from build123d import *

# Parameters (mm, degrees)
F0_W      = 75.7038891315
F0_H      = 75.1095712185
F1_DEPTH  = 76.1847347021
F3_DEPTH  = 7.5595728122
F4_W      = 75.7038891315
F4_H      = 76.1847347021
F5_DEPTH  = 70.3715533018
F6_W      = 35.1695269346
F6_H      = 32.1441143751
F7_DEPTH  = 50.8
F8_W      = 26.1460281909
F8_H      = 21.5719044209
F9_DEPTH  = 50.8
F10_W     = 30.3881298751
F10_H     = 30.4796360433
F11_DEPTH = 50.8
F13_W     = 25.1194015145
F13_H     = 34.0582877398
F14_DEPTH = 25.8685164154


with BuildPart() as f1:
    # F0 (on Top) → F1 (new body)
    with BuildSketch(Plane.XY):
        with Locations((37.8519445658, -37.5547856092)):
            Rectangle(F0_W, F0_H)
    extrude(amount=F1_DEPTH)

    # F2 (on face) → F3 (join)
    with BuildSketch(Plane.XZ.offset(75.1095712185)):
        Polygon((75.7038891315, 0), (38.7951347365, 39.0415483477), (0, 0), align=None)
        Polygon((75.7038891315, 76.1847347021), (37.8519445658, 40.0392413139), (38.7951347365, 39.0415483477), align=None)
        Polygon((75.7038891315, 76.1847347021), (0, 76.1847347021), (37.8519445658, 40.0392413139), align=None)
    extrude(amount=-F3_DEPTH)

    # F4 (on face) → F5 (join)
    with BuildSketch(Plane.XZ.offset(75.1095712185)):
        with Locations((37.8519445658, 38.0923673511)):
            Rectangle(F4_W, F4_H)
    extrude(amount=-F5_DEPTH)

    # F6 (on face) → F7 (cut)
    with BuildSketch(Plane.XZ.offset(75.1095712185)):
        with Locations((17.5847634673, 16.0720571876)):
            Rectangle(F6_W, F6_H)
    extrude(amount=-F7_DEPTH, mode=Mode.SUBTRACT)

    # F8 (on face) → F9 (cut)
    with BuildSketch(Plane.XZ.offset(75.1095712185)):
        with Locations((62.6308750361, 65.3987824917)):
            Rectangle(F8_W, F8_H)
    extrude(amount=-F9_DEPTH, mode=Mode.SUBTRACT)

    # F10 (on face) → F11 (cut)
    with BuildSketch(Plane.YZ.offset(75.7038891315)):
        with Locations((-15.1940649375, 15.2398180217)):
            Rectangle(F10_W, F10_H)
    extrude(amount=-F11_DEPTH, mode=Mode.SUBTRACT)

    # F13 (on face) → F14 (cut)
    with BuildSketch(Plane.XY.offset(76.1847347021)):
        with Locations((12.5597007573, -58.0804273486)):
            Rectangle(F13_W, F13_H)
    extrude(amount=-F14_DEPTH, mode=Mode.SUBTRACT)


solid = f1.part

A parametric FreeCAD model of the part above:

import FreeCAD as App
import Part
import Sketcher
Q = App.Units.Quantity

doc = App.newDocument("Part")
body = doc.addObject("PartDesign::Body", "Body")

sketch1 = doc.addObject("Sketcher::SketchObject", "Sketch")
body.addObject(sketch1)
sketch1.AttachmentSupport = (doc.XY_Plane, [""])
sketch1.MapMode = "FlatFace"
sketch1.addGeometry(Part.LineSegment(App.Vector(0, 0, 0), App.Vector(0, -75, 0)), False)
sketch1.addGeometry(Part.LineSegment(App.Vector(0, -75, 0), App.Vector(76, -75, 0)), False)
sketch1.addGeometry(Part.LineSegment(App.Vector(76, -75, 0), App.Vector(76, 0, 0)), False)
sketch1.addGeometry(Part.LineSegment(App.Vector(76, 0, 0), App.Vector(0, 0, 0)), False)
sketch1.addConstraint(Sketcher.Constraint("Coincident", 0, 2, 1, 1))
sketch1.addConstraint(Sketcher.Constraint("Coincident", 1, 2, 2, 1))
sketch1.addConstraint(Sketcher.Constraint("Coincident", 2, 2, 3, 1))
sketch1.addConstraint(Sketcher.Constraint("Coincident", 3, 2, 0, 1))
sketch1.addConstraint(Sketcher.Constraint("Vertical", 0))
sketch1.addConstraint(Sketcher.Constraint("Horizontal", 1))
sketch1.addConstraint(Sketcher.Constraint("Vertical", 2))
sketch1.addConstraint(Sketcher.Constraint("Horizontal", 3))
sketch1.addConstraint(Sketcher.Constraint("Coincident", 3, 2, -1, 1))
sketch1.addConstraint(Sketcher.Constraint("DistanceX", 1, 1, 1, 2, Q("75.703889 mm")))
sketch1.addConstraint(Sketcher.Constraint("DistanceY", 0, 2, 0, 1, Q("75.109571 mm")))
pad1 = doc.addObject("PartDesign::Pad", "Pad")
body.addObject(pad1)
pad1.Profile = sketch1
pad1.Length = 76.184735

sketch2 = doc.addObject("Sketcher::SketchObject", "Sketch001")
body.addObject(sketch2)
sketch2.AttachmentSupport = (doc.XZ_Plane, [""])
sketch2.MapMode = "FlatFace"
sketch2.AttachmentOffset = App.Placement(App.Vector(0, 0, 75.109571), App.Rotation())
sketch2.addGeometry(Part.LineSegment(App.Vector(75.7, 0, 0), App.Vector(38.8, 39, 0)), False)
sketch2.addGeometry(Part.LineSegment(App.Vector(38.8, 39, 0), App.Vector(0, 0, 0)), False)
sketch2.addGeometry(Part.LineSegment(App.Vector(0, 0, 0), App.Vector(75.7, 0, 0)), False)
sketch2.addGeometry(Part.LineSegment(App.Vector(37.9, 40, 0), App.Vector(38.8, 39, 0)), False)
sketch2.addGeometry(Part.LineSegment(App.Vector(38.8, 39, 0), App.Vector(75.7, 76.2, 0)), False)
sketch2.addGeometry(Part.LineSegment(App.Vector(75.7, 76.2, 0), App.Vector(0, 76.2, 0)), False)
sketch2.addGeometry(Part.LineSegment(App.Vector(0, 76.2, 0), App.Vector(37.9, 40, 0)), False)
sketch2.addConstraint(Sketcher.Constraint("Coincident", 0, 2, 1, 1))
sketch2.addConstraint(Sketcher.Constraint("Coincident", 1, 2, 2, 1))
sketch2.addConstraint(Sketcher.Constraint("Coincident", 2, 2, 0, 1))
sketch2.addConstraint(Sketcher.Constraint("Coincident", 3, 2, 4, 1))
sketch2.addConstraint(Sketcher.Constraint("Coincident", 4, 2, 5, 1))
sketch2.addConstraint(Sketcher.Constraint("Coincident", 5, 2, 6, 1))
sketch2.addConstraint(Sketcher.Constraint("Coincident", 6, 2, 3, 1))
sketch2.addConstraint(Sketcher.Constraint("Horizontal", 2))
sketch2.addConstraint(Sketcher.Constraint("Horizontal", 5))
sketch2.addConstraint(Sketcher.Constraint("Coincident", 1, 2, -1, 1))
sketch2.addConstraint(Sketcher.Constraint("Coincident", 3, 2, 0, 2))
sketch2.addConstraint(Sketcher.Constraint("PointOnObject", 5, 2, -2))
sketch2.addConstraint(Sketcher.Constraint("Parallel", 0, 3))
sketch2.addConstraint(Sketcher.Constraint("Parallel", 1, 4))
sketch2.addConstraint(Sketcher.Constraint("Vertical", 2, 2, 4, 2))
sketch2.addConstraint(Sketcher.Constraint("Distance", 6, Q("52.338001 mm")))
sketch2.addConstraint(Sketcher.Constraint("DistanceX", 2, 1, 2, 2, Q("75.703889 mm")))
sketch2.addConstraint(Sketcher.Constraint("Distance", 4, Q("52.362892 mm")))
sketch2.addConstraint(Sketcher.Constraint("DistanceY", -1, 1, 0, 2, Q("39.041548 mm")))
pad2 = doc.addObject("PartDesign::Pad", "Pad001")
body.addObject(pad2)
pad2.Profile = sketch2
pad2.Length = 7.559573
pad2.Reversed = True

sketch3 = doc.addObject("Sketcher::SketchObject", "Sketch002")
body.addObject(sketch3)
sketch3.AttachmentSupport = (doc.XZ_Plane, [""])
sketch3.MapMode = "FlatFace"
sketch3.AttachmentOffset = App.Placement(App.Vector(0, 0, 75.109571), App.Rotation())
sketch3.addGeometry(Part.LineSegment(App.Vector(0, 76, 0), App.Vector(0, 0, 0)), False)
sketch3.addGeometry(Part.LineSegment(App.Vector(0, 0, 0), App.Vector(76, 0, 0)), False)
sketch3.addGeometry(Part.LineSegment(App.Vector(76, 0, 0), App.Vector(76, 76, 0)), False)
sketch3.addGeometry(Part.LineSegment(App.Vector(76, 76, 0), App.Vector(0, 76, 0)), False)
sketch3.addConstraint(Sketcher.Constraint("Coincident", 0, 2, 1, 1))
sketch3.addConstraint(Sketcher.Constraint("Coincident", 1, 2, 2, 1))
sketch3.addConstraint(Sketcher.Constraint("Coincident", 2, 2, 3, 1))
sketch3.addConstraint(Sketcher.Constraint("Coincident", 3, 2, 0, 1))
sketch3.addConstraint(Sketcher.Constraint("Vertical", 0))
sketch3.addConstraint(Sketcher.Constraint("Horizontal", 1))
sketch3.addConstraint(Sketcher.Constraint("Vertical", 2))
sketch3.addConstraint(Sketcher.Constraint("Horizontal", 3))
sketch3.addConstraint(Sketcher.Constraint("Coincident", 0, 2, -1, 1))
sketch3.addConstraint(Sketcher.Constraint("DistanceX", 1, 1, 1, 2, Q("75.703889 mm")))
sketch3.addConstraint(Sketcher.Constraint("DistanceY", 0, 2, 0, 1, Q("76.184735 mm")))
pad3 = doc.addObject("PartDesign::Pad", "Pad002")
body.addObject(pad3)
pad3.Profile = sketch3
pad3.Length = 70.371553
pad3.Reversed = True

sketch4 = doc.addObject("Sketcher::SketchObject", "Sketch003")
body.addObject(sketch4)
sketch4.AttachmentSupport = (doc.XZ_Plane, [""])
sketch4.MapMode = "FlatFace"
sketch4.AttachmentOffset = App.Placement(App.Vector(0, 0, 75.109571), App.Rotation())
sketch4.addGeometry(Part.LineSegment(App.Vector(0, 32, 0), App.Vector(0, 0, 0)), False)
sketch4.addGeometry(Part.LineSegment(App.Vector(0, 0, 0), App.Vector(35, 0, 0)), False)
sketch4.addGeometry(Part.LineSegment(App.Vector(35, 0, 0), App.Vector(35, 32, 0)), False)
sketch4.addGeometry(Part.LineSegment(App.Vector(35, 32, 0), App.Vector(0, 32, 0)), False)
sketch4.addConstraint(Sketcher.Constraint("Coincident", 0, 2, 1, 1))
sketch4.addConstraint(Sketcher.Constraint("Coincident", 1, 2, 2, 1))
sketch4.addConstraint(Sketcher.Constraint("Coincident", 2, 2, 3, 1))
sketch4.addConstraint(Sketcher.Constraint("Coincident", 3, 2, 0, 1))
sketch4.addConstraint(Sketcher.Constraint("Vertical", 0))
sketch4.addConstraint(Sketcher.Constraint("Horizontal", 1))
sketch4.addConstraint(Sketcher.Constraint("Vertical", 2))
sketch4.addConstraint(Sketcher.Constraint("Horizontal", 3))
sketch4.addConstraint(Sketcher.Constraint("Coincident", 0, 2, -1, 1))
sketch4.addConstraint(Sketcher.Constraint("DistanceX", 1, 1, 1, 2, Q("35.169527 mm")))
sketch4.addConstraint(Sketcher.Constraint("DistanceY", 0, 2, 0, 1, Q("32.144114 mm")))
pocket1 = doc.addObject("PartDesign::Pocket", "Pocket")
body.addObject(pocket1)
pocket1.Profile = sketch4
pocket1.Length = Q("2 in")

sketch5 = doc.addObject("Sketcher::SketchObject", "Sketch004")
body.addObject(sketch5)
sketch5.AttachmentSupport = (doc.XZ_Plane, [""])
sketch5.MapMode = "FlatFace"
sketch5.AttachmentOffset = App.Placement(App.Vector(0, 0, 75.109571), App.Rotation())
sketch5.addGeometry(Part.LineSegment(App.Vector(50, 76, 0), App.Vector(50, 55, 0)), False)
sketch5.addGeometry(Part.LineSegment(App.Vector(50, 55, 0), App.Vector(76, 55, 0)), False)
sketch5.addGeometry(Part.LineSegment(App.Vector(76, 55, 0), App.Vector(76, 76, 0)), False)
sketch5.addGeometry(Part.LineSegment(App.Vector(76, 76, 0), App.Vector(50, 76, 0)), False)
sketch5.addConstraint(Sketcher.Constraint("Coincident", 0, 2, 1, 1))
sketch5.addConstraint(Sketcher.Constraint("Coincident", 1, 2, 2, 1))
sketch5.addConstraint(Sketcher.Constraint("Coincident", 2, 2, 3, 1))
sketch5.addConstraint(Sketcher.Constraint("Coincident", 3, 2, 0, 1))
sketch5.addConstraint(Sketcher.Constraint("Vertical", 0))
sketch5.addConstraint(Sketcher.Constraint("Horizontal", 1))
sketch5.addConstraint(Sketcher.Constraint("Vertical", 2))
sketch5.addConstraint(Sketcher.Constraint("Horizontal", 3))
sketch5.addConstraint(Sketcher.Constraint("DistanceX", 1, 1, 1, 2, Q("26.146028 mm")))
sketch5.addConstraint(Sketcher.Constraint("DistanceY", 0, 2, 0, 1, Q("21.571904 mm")))
sketch5.addConstraint(Sketcher.Constraint("DistanceX", -1, 1, 0, 2, Q("49.557861 mm")))
sketch5.addConstraint(Sketcher.Constraint("DistanceY", -1, 1, 0, 2, Q("54.61283 mm")))
pocket2 = doc.addObject("PartDesign::Pocket", "Pocket001")
body.addObject(pocket2)
pocket2.Profile = sketch5
pocket2.Length = Q("2 in")

sketch6 = doc.addObject("Sketcher::SketchObject", "Sketch005")
body.addObject(sketch6)
sketch6.AttachmentSupport = (doc.YZ_Plane, [""])
sketch6.MapMode = "FlatFace"
sketch6.AttachmentOffset = App.Placement(App.Vector(0, 0, 75.703889), App.Rotation())
sketch6.addGeometry(Part.LineSegment(App.Vector(-30, 30, 0), App.Vector(-30, 0, 0)), False)
sketch6.addGeometry(Part.LineSegment(App.Vector(-30, 0, 0), App.Vector(0, 0, 0)), False)
sketch6.addGeometry(Part.LineSegment(App.Vector(0, 0, 0), App.Vector(0, 30, 0)), False)
sketch6.addGeometry(Part.LineSegment(App.Vector(0, 30, 0), App.Vector(-30, 30, 0)), False)
sketch6.addConstraint(Sketcher.Constraint("Coincident", 0, 2, 1, 1))
sketch6.addConstraint(Sketcher.Constraint("Coincident", 1, 2, 2, 1))
sketch6.addConstraint(Sketcher.Constraint("Coincident", 2, 2, 3, 1))
sketch6.addConstraint(Sketcher.Constraint("Coincident", 3, 2, 0, 1))
sketch6.addConstraint(Sketcher.Constraint("Vertical", 0))
sketch6.addConstraint(Sketcher.Constraint("Horizontal", 1))
sketch6.addConstraint(Sketcher.Constraint("Vertical", 2))
sketch6.addConstraint(Sketcher.Constraint("Horizontal", 3))
sketch6.addConstraint(Sketcher.Constraint("Coincident", 1, 2, -1, 1))
sketch6.addConstraint(Sketcher.Constraint("DistanceX", 1, 1, 1, 2, Q("30.38813 mm")))
sketch6.addConstraint(Sketcher.Constraint("DistanceY", 0, 2, 0, 1, Q("30.479636 mm")))
pocket3 = doc.addObject("PartDesign::Pocket", "Pocket002")
body.addObject(pocket3)
pocket3.Profile = sketch6
pocket3.Length = Q("2 in")

sketch7 = doc.addObject("Sketcher::SketchObject", "Sketch006")
body.addObject(sketch7)
sketch7.AttachmentSupport = (doc.XY_Plane, [""])
sketch7.MapMode = "FlatFace"
sketch7.AttachmentOffset = App.Placement(App.Vector(0, 0, 76.184735), App.Rotation())
sketch7.addGeometry(Part.LineSegment(App.Vector(0, -41, 0), App.Vector(0, -75, 0)), False)
sketch7.addGeometry(Part.LineSegment(App.Vector(0, -75, 0), App.Vector(25, -75, 0)), False)
sketch7.addGeometry(Part.LineSegment(App.Vector(25, -75, 0), App.Vector(25, -41, 0)), False)
sketch7.addGeometry(Part.LineSegment(App.Vector(25, -41, 0), App.Vector(0, -41, 0)), False)
sketch7.addConstraint(Sketcher.Constraint("Coincident", 0, 2, 1, 1))
sketch7.addConstraint(Sketcher.Constraint("Coincident", 1, 2, 2, 1))
sketch7.addConstraint(Sketcher.Constraint("Coincident", 2, 2, 3, 1))
sketch7.addConstraint(Sketcher.Constraint("Coincident", 3, 2, 0, 1))
sketch7.addConstraint(Sketcher.Constraint("Vertical", 0))
sketch7.addConstraint(Sketcher.Constraint("Horizontal", 1))
sketch7.addConstraint(Sketcher.Constraint("Vertical", 2))
sketch7.addConstraint(Sketcher.Constraint("Horizontal", 3))
sketch7.addConstraint(Sketcher.Constraint("PointOnObject", 0, 2, -2))
sketch7.addConstraint(Sketcher.Constraint("DistanceX", 1, 1, 1, 2, Q("25.119402 mm")))
sketch7.addConstraint(Sketcher.Constraint("DistanceY", 0, 2, 0, 1, Q("34.058288 mm")))
sketch7.addConstraint(Sketcher.Constraint("DistanceY", 0, 2, -1, 1, Q("75.109571 mm")))
pocket4 = doc.addObject("PartDesign::Pocket", "Pocket003")
body.addObject(pocket4)
pocket4.Profile = sketch7
pocket4.Length = 25.868516

doc.recompute()
